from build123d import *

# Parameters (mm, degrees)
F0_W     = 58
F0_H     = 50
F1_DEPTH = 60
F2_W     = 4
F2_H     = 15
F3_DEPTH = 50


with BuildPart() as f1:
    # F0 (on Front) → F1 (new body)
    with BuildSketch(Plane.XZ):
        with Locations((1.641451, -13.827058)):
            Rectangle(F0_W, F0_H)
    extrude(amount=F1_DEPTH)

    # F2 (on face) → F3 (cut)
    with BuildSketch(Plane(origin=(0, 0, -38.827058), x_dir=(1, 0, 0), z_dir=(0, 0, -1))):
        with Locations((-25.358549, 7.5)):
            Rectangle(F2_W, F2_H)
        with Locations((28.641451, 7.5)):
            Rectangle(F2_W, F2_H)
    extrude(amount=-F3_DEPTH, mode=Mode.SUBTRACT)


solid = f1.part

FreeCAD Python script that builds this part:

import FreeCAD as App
import Part
import Sketcher

V = App.Vector


def add_polygon(sketch, points):
    """Adds a closed chain of lines whose ends are joined by coincident constraints."""
    first, n = sketch.GeometryCount, len(points)
    for a, b in zip(points, points[1:] + points[:1]):
        sketch.addGeometry(Part.LineSegment(App.Vector(*a, 0), App.Vector(*b, 0)), False)
    for i in range(n):
        sketch.addConstraint(Sketcher.Constraint("Coincident", first + i, 2, first + (i + 1) % n, 1))

doc = App.newDocument("Part")
body = doc.addObject("PartDesign::Body", "Body")

sketch1 = doc.addObject("Sketcher::SketchObject", "Sketch")
body.addObject(sketch1)
sketch1.AttachmentSupport = (doc.XZ_Plane, [""])
sketch1.MapMode = "FlatFace"
add_polygon(sketch1, [(-27, 11), (-27, -39), (31, -39), (31, 11)])
sketch1.addConstraint(Sketcher.Constraint("Vertical", 0))
sketch1.addConstraint(Sketcher.Constraint("Horizontal", 1))
sketch1.addConstraint(Sketcher.Constraint("Vertical", 2))
sketch1.addConstraint(Sketcher.Constraint("Horizontal", 3))
sketch1.addConstraint(Sketcher.Constraint("DistanceX", 1, 1, 1, 2, 58.0))
sketch1.addConstraint(Sketcher.Constraint("DistanceY", 0, 2, 0, 1, 50.0))
sketch1.addConstraint(Sketcher.Constraint("DistanceX", 0, 2, -1, 1, 27.358549))
sketch1.addConstraint(Sketcher.Constraint("DistanceY", 0, 2, -1, 1, 38.827058))
pad1 = doc.addObject("PartDesign::Pad", "Pad")
body.addObject(pad1)
pad1.Profile = sketch1
pad1.Length = 60

sketch2 = doc.addObject("Sketcher::SketchObject", "Sketch001")
body.addObject(sketch2)
sketch2.AttachmentSupport = (doc.XY_Plane, [""])
sketch2.MapMode = "FlatFace"
sketch2.AttachmentOffset = App.Placement(V(0, 0, -38.827058), App.Rotation())
add_polygon(sketch2, [(-27.4, -15), (-27.4, 0), (-23.4, 0), (-23.4, -15)])
add_polygon(sketch2, [(26.6, -15), (26.6, 0), (30.6, 0), (30.6, -15)])
sketch2.addConstraint(Sketcher.Constraint("Vertical", 0))
sketch2.addConstraint(Sketcher.Constraint("Horizontal", 1))
sketch2.addConstraint(Sketcher.Constraint("Vertical", 2))
sketch2.addConstraint(Sketcher.Constraint("Horizontal", 3))
sketch2.addConstraint(Sketcher.Constraint("Vertical", 4))
sketch2.addConstraint(Sketcher.Constraint("Horizontal", 5))
sketch2.addConstraint(Sketcher.Constraint("Vertical", 6))
sketch2.addConstraint(Sketcher.Constraint("Horizontal", 7))
sketch2.addConstraint(Sketcher.Constraint("PointOnObject", 0, 2, -1))
sketch2.addConstraint(Sketcher.Constraint("PointOnObject", 4, 2, -1))
sketch2.addConstraint(Sketcher.Constraint("Horizontal", 3, 2, 6, 2))
sketch2.addConstraint(Sketcher.Constraint("Equal", 3, 5))
sketch2.addConstraint(Sketcher.Constraint("DistanceX", 1, 1, 1, 2, 4.0))
sketch2.addConstraint(Sketcher.Constraint("DistanceY", 0, 1, 0, 2, 15.0))
sketch2.addConstraint(Sketcher.Constraint("DistanceX", 1, 2, 4, 2, 50.0))
sketch2.addConstraint(Sketcher.Constraint("DistanceX", 0, 2, -1, 1, 27.358549))
pocket1 = doc.addObject("PartDesign::Pocket", "Pocket")
body.addObject(pocket1)
pocket1.Profile = sketch2
pocket1.Length = 50
pocket1.Reversed = True

doc.recompute()
